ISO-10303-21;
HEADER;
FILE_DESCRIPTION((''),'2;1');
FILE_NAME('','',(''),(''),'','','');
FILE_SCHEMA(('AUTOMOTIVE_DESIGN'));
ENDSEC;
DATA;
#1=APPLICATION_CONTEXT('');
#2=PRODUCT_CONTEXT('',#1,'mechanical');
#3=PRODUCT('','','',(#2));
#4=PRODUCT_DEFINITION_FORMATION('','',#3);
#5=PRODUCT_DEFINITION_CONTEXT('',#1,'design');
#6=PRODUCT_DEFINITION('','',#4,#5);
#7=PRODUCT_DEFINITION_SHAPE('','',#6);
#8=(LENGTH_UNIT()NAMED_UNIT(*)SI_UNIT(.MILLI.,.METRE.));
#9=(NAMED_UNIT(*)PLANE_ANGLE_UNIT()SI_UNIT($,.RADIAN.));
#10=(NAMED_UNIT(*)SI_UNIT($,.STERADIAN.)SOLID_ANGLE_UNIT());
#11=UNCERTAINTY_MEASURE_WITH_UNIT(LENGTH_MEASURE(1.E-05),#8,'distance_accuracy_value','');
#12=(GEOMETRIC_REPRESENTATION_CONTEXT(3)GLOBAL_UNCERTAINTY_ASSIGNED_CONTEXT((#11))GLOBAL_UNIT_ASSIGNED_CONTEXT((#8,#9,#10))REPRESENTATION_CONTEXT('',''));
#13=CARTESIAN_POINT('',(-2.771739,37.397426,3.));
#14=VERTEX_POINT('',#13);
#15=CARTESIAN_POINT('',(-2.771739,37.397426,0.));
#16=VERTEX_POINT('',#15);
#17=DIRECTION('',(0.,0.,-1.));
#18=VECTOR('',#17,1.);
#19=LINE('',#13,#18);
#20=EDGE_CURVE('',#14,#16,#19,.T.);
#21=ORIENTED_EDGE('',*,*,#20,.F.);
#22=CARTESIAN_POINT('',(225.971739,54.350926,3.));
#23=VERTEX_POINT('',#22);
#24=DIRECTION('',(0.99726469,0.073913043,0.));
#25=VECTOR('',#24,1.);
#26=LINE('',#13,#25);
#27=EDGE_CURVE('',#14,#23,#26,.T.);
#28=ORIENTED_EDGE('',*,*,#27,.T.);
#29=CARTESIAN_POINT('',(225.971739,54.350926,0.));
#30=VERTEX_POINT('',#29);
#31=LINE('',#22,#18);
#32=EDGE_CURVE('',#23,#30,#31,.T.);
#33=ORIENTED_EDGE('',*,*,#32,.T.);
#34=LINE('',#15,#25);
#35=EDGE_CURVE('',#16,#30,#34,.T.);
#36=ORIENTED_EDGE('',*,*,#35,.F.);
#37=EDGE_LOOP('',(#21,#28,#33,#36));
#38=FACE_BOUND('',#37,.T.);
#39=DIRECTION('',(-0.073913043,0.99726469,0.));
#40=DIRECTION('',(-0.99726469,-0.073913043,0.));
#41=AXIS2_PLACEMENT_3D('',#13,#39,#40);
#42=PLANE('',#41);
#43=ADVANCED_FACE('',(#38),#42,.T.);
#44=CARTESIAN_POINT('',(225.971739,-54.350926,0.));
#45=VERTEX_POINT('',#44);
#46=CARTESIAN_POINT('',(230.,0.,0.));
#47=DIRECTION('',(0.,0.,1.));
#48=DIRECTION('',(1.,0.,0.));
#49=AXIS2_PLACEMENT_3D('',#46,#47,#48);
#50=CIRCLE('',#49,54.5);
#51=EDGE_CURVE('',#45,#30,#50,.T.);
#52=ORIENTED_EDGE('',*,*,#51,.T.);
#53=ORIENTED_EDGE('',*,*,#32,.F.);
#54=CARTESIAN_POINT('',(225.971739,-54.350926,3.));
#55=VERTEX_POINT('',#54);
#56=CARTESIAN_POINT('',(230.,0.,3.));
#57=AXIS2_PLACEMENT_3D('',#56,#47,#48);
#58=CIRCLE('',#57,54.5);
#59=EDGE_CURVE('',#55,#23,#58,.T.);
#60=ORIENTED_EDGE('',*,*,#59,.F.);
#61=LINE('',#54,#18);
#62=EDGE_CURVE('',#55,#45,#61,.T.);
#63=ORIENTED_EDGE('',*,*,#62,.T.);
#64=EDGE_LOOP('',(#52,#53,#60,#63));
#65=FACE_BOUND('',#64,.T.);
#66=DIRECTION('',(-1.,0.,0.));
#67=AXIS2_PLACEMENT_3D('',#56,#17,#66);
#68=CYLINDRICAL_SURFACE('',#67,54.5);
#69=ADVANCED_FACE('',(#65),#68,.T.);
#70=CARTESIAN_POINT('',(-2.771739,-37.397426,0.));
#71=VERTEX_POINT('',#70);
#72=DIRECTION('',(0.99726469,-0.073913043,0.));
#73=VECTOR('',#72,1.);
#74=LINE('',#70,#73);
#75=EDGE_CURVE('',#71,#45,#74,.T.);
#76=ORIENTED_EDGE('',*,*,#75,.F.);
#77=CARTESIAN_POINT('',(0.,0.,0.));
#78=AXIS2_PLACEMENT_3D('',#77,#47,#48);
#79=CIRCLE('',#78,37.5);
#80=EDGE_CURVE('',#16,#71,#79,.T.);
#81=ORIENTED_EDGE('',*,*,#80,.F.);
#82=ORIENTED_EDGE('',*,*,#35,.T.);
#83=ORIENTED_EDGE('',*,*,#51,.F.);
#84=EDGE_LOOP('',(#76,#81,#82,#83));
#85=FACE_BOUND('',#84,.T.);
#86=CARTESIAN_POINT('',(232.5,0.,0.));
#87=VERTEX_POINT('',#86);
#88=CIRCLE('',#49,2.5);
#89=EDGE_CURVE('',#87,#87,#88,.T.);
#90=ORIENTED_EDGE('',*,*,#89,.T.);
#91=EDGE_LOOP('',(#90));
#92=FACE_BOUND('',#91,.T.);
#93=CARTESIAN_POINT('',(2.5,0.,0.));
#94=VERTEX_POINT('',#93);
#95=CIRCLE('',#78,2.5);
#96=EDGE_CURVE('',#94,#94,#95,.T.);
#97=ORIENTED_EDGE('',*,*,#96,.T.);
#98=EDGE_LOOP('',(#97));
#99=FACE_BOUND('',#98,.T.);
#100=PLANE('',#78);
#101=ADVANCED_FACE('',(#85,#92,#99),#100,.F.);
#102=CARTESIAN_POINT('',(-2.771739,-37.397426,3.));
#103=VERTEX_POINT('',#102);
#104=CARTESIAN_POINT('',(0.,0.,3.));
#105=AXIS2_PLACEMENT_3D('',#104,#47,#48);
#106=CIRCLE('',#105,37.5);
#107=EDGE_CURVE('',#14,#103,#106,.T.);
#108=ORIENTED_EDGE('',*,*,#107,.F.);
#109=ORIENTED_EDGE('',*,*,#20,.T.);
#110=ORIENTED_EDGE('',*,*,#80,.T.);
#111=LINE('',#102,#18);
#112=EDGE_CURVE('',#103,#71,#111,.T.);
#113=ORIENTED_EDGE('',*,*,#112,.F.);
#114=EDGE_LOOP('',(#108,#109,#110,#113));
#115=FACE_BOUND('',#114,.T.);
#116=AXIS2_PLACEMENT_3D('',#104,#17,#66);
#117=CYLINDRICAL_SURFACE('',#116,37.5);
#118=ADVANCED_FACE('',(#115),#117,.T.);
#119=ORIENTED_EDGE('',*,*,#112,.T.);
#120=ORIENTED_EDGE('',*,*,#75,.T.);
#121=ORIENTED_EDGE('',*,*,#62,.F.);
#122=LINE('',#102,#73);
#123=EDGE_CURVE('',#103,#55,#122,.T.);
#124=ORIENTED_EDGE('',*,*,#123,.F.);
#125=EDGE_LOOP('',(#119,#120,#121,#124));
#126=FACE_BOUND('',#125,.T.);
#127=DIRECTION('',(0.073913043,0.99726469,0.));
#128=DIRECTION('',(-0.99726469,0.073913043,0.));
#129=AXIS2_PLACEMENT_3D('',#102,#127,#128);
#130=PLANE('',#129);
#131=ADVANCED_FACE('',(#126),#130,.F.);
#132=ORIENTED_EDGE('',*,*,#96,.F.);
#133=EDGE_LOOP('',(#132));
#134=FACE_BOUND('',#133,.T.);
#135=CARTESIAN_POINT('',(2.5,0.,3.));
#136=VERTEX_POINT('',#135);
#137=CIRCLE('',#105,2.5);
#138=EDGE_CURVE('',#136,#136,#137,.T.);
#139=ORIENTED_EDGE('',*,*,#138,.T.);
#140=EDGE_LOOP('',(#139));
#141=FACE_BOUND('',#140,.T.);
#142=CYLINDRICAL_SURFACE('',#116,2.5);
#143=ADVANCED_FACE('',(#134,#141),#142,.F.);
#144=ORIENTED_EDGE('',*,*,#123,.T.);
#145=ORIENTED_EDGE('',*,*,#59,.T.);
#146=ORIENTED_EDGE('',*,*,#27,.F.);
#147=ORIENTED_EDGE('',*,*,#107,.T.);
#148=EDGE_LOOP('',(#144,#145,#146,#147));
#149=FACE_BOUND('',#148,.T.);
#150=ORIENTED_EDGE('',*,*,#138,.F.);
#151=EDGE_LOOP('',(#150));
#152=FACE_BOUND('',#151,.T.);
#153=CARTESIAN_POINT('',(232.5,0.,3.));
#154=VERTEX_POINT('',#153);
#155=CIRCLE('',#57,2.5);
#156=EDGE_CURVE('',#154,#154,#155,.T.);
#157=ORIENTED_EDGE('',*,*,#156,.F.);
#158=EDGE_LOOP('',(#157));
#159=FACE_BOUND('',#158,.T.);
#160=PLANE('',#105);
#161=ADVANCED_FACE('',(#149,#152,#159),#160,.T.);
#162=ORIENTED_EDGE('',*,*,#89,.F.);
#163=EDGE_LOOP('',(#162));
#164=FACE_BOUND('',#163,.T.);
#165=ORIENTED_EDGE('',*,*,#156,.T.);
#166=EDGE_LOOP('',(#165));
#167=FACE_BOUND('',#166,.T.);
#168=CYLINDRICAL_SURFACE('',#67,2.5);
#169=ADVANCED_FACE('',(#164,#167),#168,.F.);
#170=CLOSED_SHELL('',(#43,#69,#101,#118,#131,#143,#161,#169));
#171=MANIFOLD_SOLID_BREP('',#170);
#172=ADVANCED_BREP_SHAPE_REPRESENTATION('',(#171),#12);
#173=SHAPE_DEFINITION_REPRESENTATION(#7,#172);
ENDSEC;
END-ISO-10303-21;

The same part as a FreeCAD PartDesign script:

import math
import FreeCAD as App
import Part
import Sketcher

V = App.Vector
Q = App.Units.Quantity

doc = App.newDocument("Part")
body = doc.addObject("PartDesign::Body", "Body")

sketch1 = doc.addObject("Sketcher::SketchObject", "Sketch")
body.addObject(sketch1)
sketch1.AttachmentSupport = (doc.XY_Plane, [""])
sketch1.MapMode = "FlatFace"
sketch1.addGeometry(Part.ArcOfCircle(Part.Circle(V(0, 0, 0), V(0, 0, 1), 37.5), math.radians(94), math.radians(266)), False)
sketch1.addGeometry(Part.LineSegment(V(-2.8, -37.4, 0), V(226, -54.4, 0)), False)
sketch1.addGeometry(Part.ArcOfCircle(Part.Circle(V(230, 0, 0), V(0, 0, 1), 54.5), math.radians(-94), math.radians(94)), False)
sketch1.addGeometry(Part.LineSegment(V(226, 54.4, 0), V(-2.8, 37.4, 0)), False)
sketch1.addGeometry(Part.Circle(V(0, 0, 0), V(0, 0, 1), 2.5), False)
sketch1.addGeometry(Part.Circle(V(230, 0, 0), V(0, 0, 1), 2.5), False)
sketch1.addConstraint(Sketcher.Constraint("Tangent", 0, 2, 1, 1))
sketch1.addConstraint(Sketcher.Constraint("Tangent", 1, 2, 2, 1))
sketch1.addConstraint(Sketcher.Constraint("Tangent", 2, 2, 3, 1))
sketch1.addConstraint(Sketcher.Constraint("Tangent", 3, 2, 0, 1))
sketch1.addConstraint(Sketcher.Constraint("Coincident", 0, 3, -1, 1))
sketch1.addConstraint(Sketcher.Constraint("Coincident", 4, 3, -1, 1))
sketch1.addConstraint(Sketcher.Constraint("Coincident", 5, 3, 2, 3))
sketch1.addConstraint(Sketcher.Constraint("Equal", 4, 5))
sketch1.addConstraint(Sketcher.Constraint("PointOnObject", 2, 3, -1))
sketch1.addConstraint(Sketcher.Constraint("Diameter", 4, Q("5 mm")))
sketch1.addConstraint(Sketcher.Constraint("Radius", 0, Q("37.5 mm")))
sketch1.addConstraint(Sketcher.Constraint("Radius", 2, Q("54.5 mm")))
sketch1.addConstraint(Sketcher.Constraint("DistanceX", -1, 1, 2, 3, Q("230 mm")))
pad1 = doc.addObject("PartDesign::Pad", "Pad")
body.addObject(pad1)
pad1.Profile = sketch1
pad1.Length = 3

doc.recompute()
